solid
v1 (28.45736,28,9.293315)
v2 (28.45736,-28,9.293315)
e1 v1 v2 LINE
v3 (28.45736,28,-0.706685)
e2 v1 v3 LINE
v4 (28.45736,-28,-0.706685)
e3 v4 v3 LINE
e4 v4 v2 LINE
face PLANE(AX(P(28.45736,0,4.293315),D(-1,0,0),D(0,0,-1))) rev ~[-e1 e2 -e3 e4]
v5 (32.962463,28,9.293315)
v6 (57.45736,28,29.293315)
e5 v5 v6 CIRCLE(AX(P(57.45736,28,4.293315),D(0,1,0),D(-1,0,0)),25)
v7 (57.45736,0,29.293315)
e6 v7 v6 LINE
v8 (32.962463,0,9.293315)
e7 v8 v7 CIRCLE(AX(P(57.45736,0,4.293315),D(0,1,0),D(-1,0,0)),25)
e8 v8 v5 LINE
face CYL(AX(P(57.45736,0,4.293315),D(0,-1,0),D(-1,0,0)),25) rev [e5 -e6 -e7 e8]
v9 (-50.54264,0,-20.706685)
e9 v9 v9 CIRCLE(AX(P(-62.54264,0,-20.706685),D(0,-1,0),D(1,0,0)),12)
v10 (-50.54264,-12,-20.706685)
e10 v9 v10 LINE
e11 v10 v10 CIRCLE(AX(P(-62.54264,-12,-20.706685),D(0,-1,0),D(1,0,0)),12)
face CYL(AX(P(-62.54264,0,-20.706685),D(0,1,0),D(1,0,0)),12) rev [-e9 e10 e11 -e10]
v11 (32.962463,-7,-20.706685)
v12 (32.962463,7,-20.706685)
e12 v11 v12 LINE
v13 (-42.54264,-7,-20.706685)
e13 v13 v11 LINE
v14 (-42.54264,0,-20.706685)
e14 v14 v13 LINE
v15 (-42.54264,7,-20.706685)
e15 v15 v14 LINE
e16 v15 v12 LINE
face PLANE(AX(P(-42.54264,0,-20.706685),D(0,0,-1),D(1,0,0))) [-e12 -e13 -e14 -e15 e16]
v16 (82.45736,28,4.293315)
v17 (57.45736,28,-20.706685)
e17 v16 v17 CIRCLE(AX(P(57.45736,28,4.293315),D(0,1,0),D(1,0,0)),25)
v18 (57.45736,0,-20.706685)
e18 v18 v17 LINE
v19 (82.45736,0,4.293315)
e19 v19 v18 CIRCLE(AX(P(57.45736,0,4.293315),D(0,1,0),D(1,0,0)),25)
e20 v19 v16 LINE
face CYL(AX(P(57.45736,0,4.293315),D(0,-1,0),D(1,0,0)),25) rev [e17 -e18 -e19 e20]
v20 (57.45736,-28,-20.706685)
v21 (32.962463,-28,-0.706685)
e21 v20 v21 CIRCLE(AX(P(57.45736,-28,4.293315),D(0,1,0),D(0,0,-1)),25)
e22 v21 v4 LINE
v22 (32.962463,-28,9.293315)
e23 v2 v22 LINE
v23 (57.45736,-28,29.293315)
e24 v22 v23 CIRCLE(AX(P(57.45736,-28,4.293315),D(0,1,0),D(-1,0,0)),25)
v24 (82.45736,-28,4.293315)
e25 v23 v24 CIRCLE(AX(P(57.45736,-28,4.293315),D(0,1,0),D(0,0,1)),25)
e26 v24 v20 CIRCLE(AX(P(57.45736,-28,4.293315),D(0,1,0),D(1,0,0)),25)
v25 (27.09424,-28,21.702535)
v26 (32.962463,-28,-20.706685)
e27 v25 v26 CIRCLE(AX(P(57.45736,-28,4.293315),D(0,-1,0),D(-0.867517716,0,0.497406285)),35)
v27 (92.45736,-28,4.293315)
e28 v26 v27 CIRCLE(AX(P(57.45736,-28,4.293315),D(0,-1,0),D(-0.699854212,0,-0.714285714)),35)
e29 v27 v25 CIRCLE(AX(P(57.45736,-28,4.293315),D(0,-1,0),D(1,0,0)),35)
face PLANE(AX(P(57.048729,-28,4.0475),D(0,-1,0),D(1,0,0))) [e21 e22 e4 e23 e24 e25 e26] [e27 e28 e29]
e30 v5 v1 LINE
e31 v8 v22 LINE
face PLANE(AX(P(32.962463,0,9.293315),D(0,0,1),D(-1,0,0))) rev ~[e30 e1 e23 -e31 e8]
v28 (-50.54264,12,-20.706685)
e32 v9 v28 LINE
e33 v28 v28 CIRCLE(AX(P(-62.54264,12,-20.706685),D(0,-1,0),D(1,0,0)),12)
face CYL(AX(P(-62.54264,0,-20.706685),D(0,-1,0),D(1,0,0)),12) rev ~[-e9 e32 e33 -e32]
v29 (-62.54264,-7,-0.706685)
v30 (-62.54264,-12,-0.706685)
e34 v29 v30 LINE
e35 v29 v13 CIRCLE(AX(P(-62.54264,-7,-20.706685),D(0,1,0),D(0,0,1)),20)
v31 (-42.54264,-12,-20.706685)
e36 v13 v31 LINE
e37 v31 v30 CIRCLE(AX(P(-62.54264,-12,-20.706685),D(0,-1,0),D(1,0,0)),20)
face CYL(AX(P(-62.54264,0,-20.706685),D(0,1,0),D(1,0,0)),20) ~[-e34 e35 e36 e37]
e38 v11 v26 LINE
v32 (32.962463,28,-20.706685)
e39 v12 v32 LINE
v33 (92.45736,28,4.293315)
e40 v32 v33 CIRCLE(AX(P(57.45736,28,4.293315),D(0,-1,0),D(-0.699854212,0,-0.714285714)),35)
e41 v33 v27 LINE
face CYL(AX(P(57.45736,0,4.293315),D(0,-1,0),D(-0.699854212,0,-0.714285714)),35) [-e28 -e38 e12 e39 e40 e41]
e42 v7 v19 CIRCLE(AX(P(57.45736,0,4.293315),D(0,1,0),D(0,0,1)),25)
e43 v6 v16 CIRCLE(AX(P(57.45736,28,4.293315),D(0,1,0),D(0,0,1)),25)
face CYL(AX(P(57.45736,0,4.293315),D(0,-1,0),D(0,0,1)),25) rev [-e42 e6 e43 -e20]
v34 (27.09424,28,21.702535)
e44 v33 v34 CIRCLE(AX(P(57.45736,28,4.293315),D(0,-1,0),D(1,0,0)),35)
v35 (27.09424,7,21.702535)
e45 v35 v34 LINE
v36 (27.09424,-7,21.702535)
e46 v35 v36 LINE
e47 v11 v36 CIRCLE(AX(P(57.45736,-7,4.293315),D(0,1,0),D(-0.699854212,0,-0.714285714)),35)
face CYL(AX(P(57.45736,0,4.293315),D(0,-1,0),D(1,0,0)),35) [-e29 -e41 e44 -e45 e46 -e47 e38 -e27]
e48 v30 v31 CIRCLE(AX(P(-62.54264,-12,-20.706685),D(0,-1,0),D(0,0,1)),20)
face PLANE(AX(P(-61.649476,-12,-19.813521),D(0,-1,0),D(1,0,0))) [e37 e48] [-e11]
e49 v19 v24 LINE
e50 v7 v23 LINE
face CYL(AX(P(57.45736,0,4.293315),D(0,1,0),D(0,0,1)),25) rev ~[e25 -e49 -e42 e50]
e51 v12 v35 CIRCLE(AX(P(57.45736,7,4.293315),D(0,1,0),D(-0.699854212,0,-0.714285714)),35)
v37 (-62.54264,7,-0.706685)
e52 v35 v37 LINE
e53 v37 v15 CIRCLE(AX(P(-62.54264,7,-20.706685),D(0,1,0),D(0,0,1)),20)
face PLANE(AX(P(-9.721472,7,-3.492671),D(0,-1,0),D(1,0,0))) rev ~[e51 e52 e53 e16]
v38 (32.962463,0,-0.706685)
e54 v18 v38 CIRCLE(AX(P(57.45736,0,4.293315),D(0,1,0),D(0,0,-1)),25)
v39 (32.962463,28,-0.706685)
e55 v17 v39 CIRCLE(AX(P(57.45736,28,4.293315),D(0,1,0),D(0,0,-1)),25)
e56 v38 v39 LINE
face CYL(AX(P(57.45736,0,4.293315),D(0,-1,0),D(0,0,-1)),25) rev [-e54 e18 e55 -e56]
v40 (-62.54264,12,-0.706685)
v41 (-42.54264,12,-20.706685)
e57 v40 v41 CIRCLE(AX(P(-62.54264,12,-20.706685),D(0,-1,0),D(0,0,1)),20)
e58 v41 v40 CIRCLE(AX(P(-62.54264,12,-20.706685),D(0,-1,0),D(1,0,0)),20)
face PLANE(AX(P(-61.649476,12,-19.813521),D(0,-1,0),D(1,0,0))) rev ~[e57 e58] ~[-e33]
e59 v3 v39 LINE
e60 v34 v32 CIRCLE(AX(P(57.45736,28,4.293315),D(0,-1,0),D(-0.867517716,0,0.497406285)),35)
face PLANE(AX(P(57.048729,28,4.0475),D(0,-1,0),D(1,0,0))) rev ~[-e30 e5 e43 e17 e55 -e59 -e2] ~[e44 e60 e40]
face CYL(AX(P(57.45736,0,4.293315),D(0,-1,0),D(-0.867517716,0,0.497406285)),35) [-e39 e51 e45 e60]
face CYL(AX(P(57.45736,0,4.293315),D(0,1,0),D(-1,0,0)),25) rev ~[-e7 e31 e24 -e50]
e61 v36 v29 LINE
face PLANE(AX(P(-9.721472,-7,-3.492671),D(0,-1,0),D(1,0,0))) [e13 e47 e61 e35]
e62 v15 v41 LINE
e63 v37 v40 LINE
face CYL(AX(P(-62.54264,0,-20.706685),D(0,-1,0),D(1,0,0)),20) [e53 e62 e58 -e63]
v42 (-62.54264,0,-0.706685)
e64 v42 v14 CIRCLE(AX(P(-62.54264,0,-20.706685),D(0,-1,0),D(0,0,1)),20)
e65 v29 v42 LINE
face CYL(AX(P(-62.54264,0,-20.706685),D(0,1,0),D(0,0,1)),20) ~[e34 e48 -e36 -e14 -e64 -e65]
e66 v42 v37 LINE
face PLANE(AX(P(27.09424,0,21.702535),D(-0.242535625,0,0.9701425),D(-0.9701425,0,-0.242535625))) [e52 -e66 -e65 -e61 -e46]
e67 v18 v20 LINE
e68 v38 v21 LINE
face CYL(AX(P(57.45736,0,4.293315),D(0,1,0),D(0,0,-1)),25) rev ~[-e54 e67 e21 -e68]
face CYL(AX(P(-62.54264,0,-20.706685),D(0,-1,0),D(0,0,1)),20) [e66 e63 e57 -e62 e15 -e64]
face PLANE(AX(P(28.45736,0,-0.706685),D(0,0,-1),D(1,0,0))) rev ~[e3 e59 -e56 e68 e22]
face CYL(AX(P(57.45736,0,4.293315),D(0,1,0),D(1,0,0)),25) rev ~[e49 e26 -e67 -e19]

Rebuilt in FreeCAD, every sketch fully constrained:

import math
import FreeCAD as App
import Part
import Sketcher

V = App.Vector

doc = App.newDocument("Part")
params = doc.addObject("Spreadsheet::Sheet", "Params")
for row, (alias, value) in enumerate([
    ("sketch1_radius", "20 mm"),
    ("sketch1_radius2", "35 mm"),
    ("pad1_length", "7 mm"),
    ("pad1_length2", "7 mm"),
    ("sketch2_diameter", "24 mm"),
    ("sketch2_radius", "20 mm"),
    ("pad2_length", "12 mm"),
    ("pad2_length2", "12 mm"),
    ("sketch3_radius", "35 mm"),
    ("sketch3_radius2", "25 mm"),
    ("pad3_length", "28 mm"),
    ("pad3_length2", "28 mm"),
    ("sketch4_radius", "25 mm"),
    ("sketch4_width", "4 mm"),
    ("sketch4_height", "5 mm"),
    ("sketch5_radius", "25 mm"),
    ("sketch5_width", "4 mm"),
    ("sketch5_height", "5 mm"),
], start=1):
    params.set(f"A{row}", alias)
    params.set(f"B{row}", "=" + value)
    params.setAlias(f"B{row}", alias)

body = doc.addObject("PartDesign::Body", "Body")

# Sketch on XZ plane
sketch1 = doc.addObject("Sketcher::SketchObject", "Sketch")
body.addObject(sketch1)
sketch1.AttachmentSupport = (doc.XZ_Plane, [""])
sketch1.MapMode = "FlatFace"
sketch1.addGeometry(Part.ArcOfCircle(Part.Circle(V(-63, -21, 0), V(0, 0, 1), 20), math.radians(0), math.radians(90)), False)
sketch1.addGeometry(Part.LineSegment(V(-43, -21, 0), V(33, -21, 0)), False)
sketch1.addGeometry(Part.ArcOfCircle(Part.Circle(V(57, 4, 0), V(0, 0, 1), 35), math.radians(150), math.radians(226)), False)
sketch1.addGeometry(Part.LineSegment(V(27, 22, 0), V(-63, -1, 0)), False)
sketch1.addConstraint(Sketcher.Constraint("Coincident", 0, 1, 1, 1))
sketch1.addConstraint(Sketcher.Constraint("Coincident", 1, 2, 2, 2))
sketch1.addConstraint(Sketcher.Constraint("Coincident", 2, 1, 3, 1))
sketch1.addConstraint(Sketcher.Constraint("Coincident", 3, 2, 0, 2))
sketch1.addConstraint(Sketcher.Constraint("Horizontal", 1))
sketch1.addConstraint(Sketcher.Constraint("Vertical", 0, 3, 3, 2))
sketch1.addConstraint(Sketcher.Constraint("Radius", 0, 20.0))
sketch1.addConstraint(Sketcher.Constraint("Radius", 2, 35.0))
sketch1.addConstraint(Sketcher.Constraint("DistanceX", 0, 3, 2, 3, 120.0))
sketch1.addConstraint(Sketcher.Constraint("DistanceY", 0, 3, 2, 3, 25.0))
sketch1.addConstraint(Sketcher.Constraint("DistanceY", 0, 1, 2, 3, 25.0))
sketch1.addConstraint(Sketcher.Constraint("Distance", 3, 92.395581))
sketch1.addConstraint(Sketcher.Constraint("DistanceX", 0, 3, -1, 1, 62.54264))
sketch1.addConstraint(Sketcher.Constraint("DistanceY", 0, 3, -1, 1, 20.706685))
sketch1.setExpression("Constraints[6]", "Params.sketch1_radius")
sketch1.setExpression("Constraints[7]", "Params.sketch1_radius2")
pad1 = doc.addObject("PartDesign::Pad", "Pad")
body.addObject(pad1)
pad1.Profile = sketch1
pad1.Type = "TwoLengths"
pad1.setExpression("Length", "Params.pad1_length")
pad1.setExpression("Length2", "Params.pad1_length2")

# Sketch on XZ plane
sketch2 = doc.addObject("Sketcher::SketchObject", "Sketch001")
body.addObject(sketch2)
sketch2.AttachmentSupport = (doc.XZ_Plane, [""])
sketch2.MapMode = "FlatFace"
sketch2.addGeometry(Part.ArcOfCircle(Part.Circle(V(-63, -21, 0), V(0, 0, 1), 20), math.radians(90), math.radians(360)), False)
sketch2.addGeometry(Part.ArcOfCircle(Part.Circle(V(-63, -21, 0), V(0, 0, 1), 20), math.radians(0), math.radians(90)), False)
sketch2.addGeometry(Part.Circle(V(-63, -21, 0), V(0, 0, 1), 12), False)
sketch2.addConstraint(Sketcher.Constraint("Tangent", 0, 1, 1, 2))
sketch2.addConstraint(Sketcher.Constraint("Coincident", 1, 1, 0, 2))
sketch2.addConstraint(Sketcher.Constraint("Coincident", 2, 3, 0, 3))
sketch2.addConstraint(Sketcher.Constraint("Horizontal", 2, 3, 1, 1))
sketch2.addConstraint(Sketcher.Constraint("Vertical", 2, 3, 0, 1))
sketch2.addConstraint(Sketcher.Constraint("Diameter", 2, 24.0))
sketch2.addConstraint(Sketcher.Constraint("Radius", 0, 20.0))
sketch2.addConstraint(Sketcher.Constraint("DistanceX", 0, 3, -1, 1, 62.54264))
sketch2.addConstraint(Sketcher.Constraint("DistanceY", 0, 3, -1, 1, 20.706685))
sketch2.setExpression("Constraints[5]", "Params.sketch2_diameter")
sketch2.setExpression("Constraints[6]", "Params.sketch2_radius")
pad2 = doc.addObject("PartDesign::Pad", "Pad001")
body.addObject(pad2)
pad2.Profile = sketch2
pad2.Type = "TwoLengths"
pad2.setExpression("Length", "Params.pad2_length")
pad2.setExpression("Length2", "Params.pad2_length2")

# Sketch on XZ plane
sketch3 = doc.addObject("Sketcher::SketchObject", "Sketch002")
body.addObject(sketch3)
sketch3.AttachmentSupport = (doc.XZ_Plane, [""])
sketch3.MapMode = "FlatFace"
sketch3.addGeometry(Part.ArcOfCircle(Part.Circle(V(57, 4, 0), V(0, 0, 1), 35), math.radians(150), math.radians(226)), False)
sketch3.addGeometry(Part.ArcOfCircle(Part.Circle(V(57, 4, 0), V(0, 0, 1), 35), math.radians(-134), math.radians(0)), False)
sketch3.addGeometry(Part.ArcOfCircle(Part.Circle(V(57, 4, 0), V(0, 0, 1), 35), math.radians(0), math.radians(150)), False)
sketch3.addGeometry(Part.ArcOfCircle(Part.Circle(V(57, 4, 0), V(0, 0, 1), 25), math.radians(90), math.radians(180)), False)
sketch3.addGeometry(Part.ArcOfCircle(Part.Circle(V(57, 4, 0), V(0, 0, 1), 25), math.radians(0), math.radians(90)), False)
sketch3.addGeometry(Part.ArcOfCircle(Part.Circle(V(57, 4, 0), V(0, 0, 1), 25), math.radians(-90), math.radians(0)), False)
sketch3.addGeometry(Part.ArcOfCircle(Part.Circle(V(57, 4, 0), V(0, 0, 1), 25), math.radians(180), math.radians(270)), False)
sketch3.addConstraint(Sketcher.Constraint("Tangent", 0, 2, 1, 1))
sketch3.addConstraint(Sketcher.Constraint("Tangent", 1, 2, 2, 1))
sketch3.addConstraint(Sketcher.Constraint("Tangent", 2, 2, 0, 1))
sketch3.addConstraint(Sketcher.Constraint("Tangent", 3, 1, 4, 2))
sketch3.addConstraint(Sketcher.Constraint("Tangent", 4, 1, 5, 2))
sketch3.addConstraint(Sketcher.Constraint("Tangent", 5, 1, 6, 2))
sketch3.addConstraint(Sketcher.Constraint("Tangent", 6, 1, 3, 2))
sketch3.addConstraint(Sketcher.Constraint("Coincident", 3, 3, 0, 3))
sketch3.addConstraint(Sketcher.Constraint("Equal", 3, 4))
sketch3.addConstraint(Sketcher.Constraint("Horizontal", 6, 3, 1, 2))
sketch3.addConstraint(Sketcher.Constraint("Horizontal", 1, 2, 4, 1))
sketch3.addConstraint(Sketcher.Constraint("Horizontal", 0, 2, 5, 1))
sketch3.addConstraint(Sketcher.Constraint("Horizontal", 4, 1, 6, 1))
sketch3.addConstraint(Sketcher.Constraint("Vertical", 6, 3, 3, 1))
sketch3.addConstraint(Sketcher.Constraint("Vertical", 3, 1, 5, 1))
sketch3.addConstraint(Sketcher.Constraint("Radius", 0, 35.0))
sketch3.addConstraint(Sketcher.Constraint("Radius", 3, 25.0))
sketch3.addConstraint(Sketcher.Constraint("DistanceX", -1, 1, 0, 3, 57.45736))
sketch3.addConstraint(Sketcher.Constraint("DistanceX", -1, 1, 2, 2, 27.09424))
sketch3.addConstraint(Sketcher.Constraint("DistanceY", -1, 1, 0, 3, 4.293315))
sketch3.setExpression("Constraints[15]", "Params.sketch3_radius")
sketch3.setExpression("Constraints[16]", "Params.sketch3_radius2")
pad3 = doc.addObject("PartDesign::Pad", "Pad002")
body.addObject(pad3)
pad3.Profile = sketch3
pad3.Type = "TwoLengths"
pad3.setExpression("Length", "Params.pad3_length")
pad3.setExpression("Length2", "Params.pad3_length2")

# Sketch on XZ plane
sketch4 = doc.addObject("Sketcher::SketchObject", "Sketch003")
body.addObject(sketch4)
sketch4.AttachmentSupport = (doc.XZ_Plane, [""])
sketch4.MapMode = "FlatFace"
sketch4.addGeometry(Part.ArcOfCircle(Part.Circle(V(57.5, 4.3, 0), V(0, 0, 1), 25), math.radians(180), math.radians(191.54)), False)
sketch4.addGeometry(Part.LineSegment(V(32.5, 4.3, 0), V(28.5, 4.3, 0)), False)
sketch4.addGeometry(Part.LineSegment(V(28.5, 4.3, 0), V(28.5, -0.7, 0)), False)
sketch4.addGeometry(Part.LineSegment(V(28.5, -0.7, 0), V(33, -0.7, 0)), False)
sketch4.addConstraint(Sketcher.Constraint("Coincident", 0, 1, 1, 1))
sketch4.addConstraint(Sketcher.Constraint("Coincident", 1, 2, 2, 1))
sketch4.addConstraint(Sketcher.Constraint("Coincident", 2, 2, 3, 1))
sketch4.addConstraint(Sketcher.Constraint("Coincident", 3, 2, 0, 2))
sketch4.addConstraint(Sketcher.Constraint("Horizontal", 1))
sketch4.addConstraint(Sketcher.Constraint("Vertical", 2))
sketch4.addConstraint(Sketcher.Constraint("Horizontal", 3))
sketch4.addConstraint(Sketcher.Constraint("Radius", 0, 25.0))
sketch4.addConstraint(Sketcher.Constraint("DistanceX", 1, 2, 1, 1, 4.0))
sketch4.addConstraint(Sketcher.Constraint("DistanceY", 2, 2, 2, 1, 5.0))
sketch4.addConstraint(Sketcher.Constraint("DistanceY", 2, 2, 0, 3, 5.0))
sketch4.addConstraint(Sketcher.Constraint("DistanceX", -1, 1, 0, 3, 57.45736))
sketch4.addConstraint(Sketcher.Constraint("DistanceY", -1, 1, 0, 3, 4.293315))
sketch4.setExpression("Constraints[7]", "Params.sketch4_radius")
sketch4.setExpression("Constraints[8]", "Params.sketch4_width")
sketch4.setExpression("Constraints[9]", "Params.sketch4_height")
pocket1 = doc.addObject("PartDesign::Pocket", "Pocket")
body.addObject(pocket1)
pocket1.Profile = sketch4
pocket1.Type = "ThroughAll"
pocket1.Midplane = True

# Sketch on XZ plane
sketch5 = doc.addObject("Sketcher::SketchObject", "Sketch004")
body.addObject(sketch5)
sketch5.AttachmentSupport = (doc.XZ_Plane, [""])
sketch5.MapMode = "FlatFace"
sketch5.addGeometry(Part.LineSegment(V(28.5, 4.3, 0), V(32.5, 4.3, 0)), False)
sketch5.addGeometry(Part.ArcOfCircle(Part.Circle(V(57.5, 4.3, 0), V(0, 0, 1), 25), math.radians(168.46), math.radians(180)), False)
sketch5.addGeometry(Part.LineSegment(V(33, 9.3, 0), V(28.5, 9.3, 0)), False)
sketch5.addGeometry(Part.LineSegment(V(28.5, 9.3, 0), V(28.5, 4.3, 0)), False)
sketch5.addConstraint(Sketcher.Constraint("Coincident", 0, 2, 1, 2))
sketch5.addConstraint(Sketcher.Constraint("Coincident", 1, 1, 2, 1))
sketch5.addConstraint(Sketcher.Constraint("Coincident", 2, 2, 3, 1))
sketch5.addConstraint(Sketcher.Constraint("Coincident", 3, 2, 0, 1))
sketch5.addConstraint(Sketcher.Constraint("Horizontal", 0))
sketch5.addConstraint(Sketcher.Constraint("Horizontal", 2))
sketch5.addConstraint(Sketcher.Constraint("Vertical", 3))
sketch5.addConstraint(Sketcher.Constraint("Horizontal", 1, 3, 0, 2))
sketch5.addConstraint(Sketcher.Constraint("Radius", 1, 25.0))
sketch5.addConstraint(Sketcher.Constraint("DistanceX", 0, 1, 0, 2, 4.0))
sketch5.addConstraint(Sketcher.Constraint("DistanceY", 3, 2, 3, 1, 5.0))
sketch5.addConstraint(Sketcher.Constraint("DistanceX", -1, 1, 1, 3, 57.45736))
sketch5.addConstraint(Sketcher.Constraint("DistanceY", -1, 1, 1, 3, 4.293315))
sketch5.setExpression("Constraints[8]", "Params.sketch5_radius")
sketch5.setExpression("Constraints[9]", "Params.sketch5_width")
sketch5.setExpression("Constraints[10]", "Params.sketch5_height")
pocket2 = doc.addObject("PartDesign::Pocket", "Pocket001")
body.addObject(pocket2)
pocket2.Profile = sketch5
pocket2.Type = "ThroughAll"
pocket2.Midplane = True

doc.recompute()
